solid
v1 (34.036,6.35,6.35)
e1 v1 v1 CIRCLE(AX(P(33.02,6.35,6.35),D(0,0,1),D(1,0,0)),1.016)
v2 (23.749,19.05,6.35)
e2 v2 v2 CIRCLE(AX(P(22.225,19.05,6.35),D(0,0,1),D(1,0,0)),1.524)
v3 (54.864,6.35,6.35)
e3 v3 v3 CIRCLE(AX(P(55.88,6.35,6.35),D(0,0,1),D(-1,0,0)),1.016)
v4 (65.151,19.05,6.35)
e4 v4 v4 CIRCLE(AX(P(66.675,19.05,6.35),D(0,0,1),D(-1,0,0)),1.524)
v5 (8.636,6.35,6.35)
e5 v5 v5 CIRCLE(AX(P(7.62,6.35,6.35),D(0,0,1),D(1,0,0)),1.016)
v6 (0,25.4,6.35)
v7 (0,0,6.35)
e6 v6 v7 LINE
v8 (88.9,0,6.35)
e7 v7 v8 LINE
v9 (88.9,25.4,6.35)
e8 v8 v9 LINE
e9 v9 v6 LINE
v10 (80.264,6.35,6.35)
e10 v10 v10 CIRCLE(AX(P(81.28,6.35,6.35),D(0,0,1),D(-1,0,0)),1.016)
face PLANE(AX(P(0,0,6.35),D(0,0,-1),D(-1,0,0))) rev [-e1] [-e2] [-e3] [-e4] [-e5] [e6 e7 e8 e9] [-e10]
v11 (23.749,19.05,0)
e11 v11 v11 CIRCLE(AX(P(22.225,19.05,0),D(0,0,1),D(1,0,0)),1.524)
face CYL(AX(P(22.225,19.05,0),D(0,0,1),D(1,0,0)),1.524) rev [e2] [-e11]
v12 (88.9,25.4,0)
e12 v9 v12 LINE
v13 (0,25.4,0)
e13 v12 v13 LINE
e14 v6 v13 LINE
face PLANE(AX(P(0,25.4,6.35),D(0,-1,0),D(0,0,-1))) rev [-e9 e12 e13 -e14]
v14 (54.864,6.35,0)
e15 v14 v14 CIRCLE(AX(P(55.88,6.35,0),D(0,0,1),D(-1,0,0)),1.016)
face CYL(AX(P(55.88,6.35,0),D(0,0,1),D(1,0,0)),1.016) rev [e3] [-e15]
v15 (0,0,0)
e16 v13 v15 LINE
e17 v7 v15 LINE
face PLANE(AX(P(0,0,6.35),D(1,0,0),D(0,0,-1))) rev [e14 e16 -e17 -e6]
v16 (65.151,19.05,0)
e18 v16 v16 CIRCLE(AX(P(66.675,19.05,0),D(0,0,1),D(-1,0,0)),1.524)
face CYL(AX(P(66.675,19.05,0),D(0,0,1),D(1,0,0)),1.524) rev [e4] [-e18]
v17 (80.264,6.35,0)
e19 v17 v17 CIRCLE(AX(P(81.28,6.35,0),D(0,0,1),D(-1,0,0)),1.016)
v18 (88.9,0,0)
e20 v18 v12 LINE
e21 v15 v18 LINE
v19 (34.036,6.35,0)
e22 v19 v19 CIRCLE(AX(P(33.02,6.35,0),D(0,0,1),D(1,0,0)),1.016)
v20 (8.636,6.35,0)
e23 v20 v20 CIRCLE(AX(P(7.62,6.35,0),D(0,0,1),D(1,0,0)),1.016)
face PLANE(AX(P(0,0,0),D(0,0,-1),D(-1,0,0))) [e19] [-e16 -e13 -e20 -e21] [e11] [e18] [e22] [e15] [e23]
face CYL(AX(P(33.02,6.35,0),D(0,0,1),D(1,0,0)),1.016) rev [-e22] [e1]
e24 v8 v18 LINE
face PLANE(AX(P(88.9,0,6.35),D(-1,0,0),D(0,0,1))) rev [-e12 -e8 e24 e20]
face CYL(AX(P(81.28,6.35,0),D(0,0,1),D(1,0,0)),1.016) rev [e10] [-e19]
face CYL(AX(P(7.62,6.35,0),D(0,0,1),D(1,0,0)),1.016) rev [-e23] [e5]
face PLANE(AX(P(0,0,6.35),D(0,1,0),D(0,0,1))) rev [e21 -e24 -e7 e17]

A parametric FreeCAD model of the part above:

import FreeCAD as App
import Part
import Sketcher
from FreeCAD import Vector
Q = App.Units.Quantity


def add_polygon(sketch, points):
    """Adds a closed chain of lines whose ends are joined by coincident constraints."""
    first, n = sketch.GeometryCount, len(points)
    for a, b in zip(points, points[1:] + points[:1]):
        sketch.addGeometry(Part.LineSegment(App.Vector(*a, 0), App.Vector(*b, 0)), False)
    for i in range(n):
        sketch.addConstraint(Sketcher.Constraint("Coincident", first + i, 2, first + (i + 1) % n, 1))

doc = App.newDocument("Part")
body = doc.addObject("PartDesign::Body", "Body")

sketch1 = doc.addObject("Sketcher::SketchObject", "Sketch")
body.addObject(sketch1)
sketch1.AttachmentSupport = (doc.XY_Plane, [""])
sketch1.MapMode = "FlatFace"
add_polygon(sketch1, [(0, 25.4), (0, 0), (88.9, 0), (88.9, 25.4)])
sketch1.addConstraint([
    Sketcher.Constraint("Vertical", 0),
    Sketcher.Constraint("Horizontal", 1),
    Sketcher.Constraint("Vertical", 2),
    Sketcher.Constraint("Horizontal", 3),
    Sketcher.Constraint("Coincident", 0, 2, -1, 1),
    Sketcher.Constraint("DistanceY", 0, 2, 0, 1, Q("1 in")),
    Sketcher.Constraint("DistanceX", 1, 1, 1, 2, Q("3.5 in")),
])
pad1 = doc.addObject("PartDesign::Pad", "Pad")
body.addObject(pad1)
pad1.Profile = sketch1
pad1.Length = Q("0.25 in")

sketch2 = doc.addObject("Sketcher::SketchObject", "Sketch001")
body.addObject(sketch2)
sketch2.AttachmentSupport = (doc.XY_Plane, [""])
sketch2.MapMode = "FlatFace"
sketch2.AttachmentOffset = App.Placement(Vector(0, 0, 0.25 * 25.4), App.Rotation())
sketch2.addGeometry([
    Part.Circle(Vector(7.62, 6.35, 0), Vector(0, 0, 1), 1.016),
    Part.Circle(Vector(33.02, 6.35, 0), Vector(0, 0, 1), 1.016),
    Part.Circle(Vector(55.88, 6.35, 0), Vector(0, 0, 1), 1.016),
    Part.Circle(Vector(81.28, 6.35, 0), Vector(0, 0, 1), 1.016),
], False)
sketch2.addConstraint([
    Sketcher.Constraint("Equal", 0, 1),
    Sketcher.Constraint("Equal", 1, 2),
    Sketcher.Constraint("Equal", 2, 3),
    Sketcher.Constraint("Horizontal", 0, 3, 1, 3),
    Sketcher.Constraint("Horizontal", 1, 3, 2, 3),
    Sketcher.Constraint("Horizontal", 2, 3, 3, 3),
    Sketcher.Constraint("Diameter", 0, Q("0.08 in")),
    Sketcher.Constraint("DistanceX", 0, 3, 1, 3, Q("1 in")),
    Sketcher.Constraint("DistanceX", 2, 3, 3, 3, Q("1 in")),
    Sketcher.Constraint("DistanceX", -1, 1, 0, 3, Q("0.3 in")),
    Sketcher.Constraint("DistanceX", -1, 1, 2, 3, Q("2.2 in")),
    Sketcher.Constraint("DistanceY", -1, 1, 0, 3, Q("0.25 in")),
])
pocket1 = doc.addObject("PartDesign::Pocket", "Pocket")
body.addObject(pocket1)
pocket1.Profile = sketch2
pocket1.Type = "ThroughAll"

sketch3 = doc.addObject("Sketcher::SketchObject", "Sketch002")
body.addObject(sketch3)
sketch3.AttachmentSupport = (doc.XY_Plane, [""])
sketch3.MapMode = "FlatFace"
sketch3.AttachmentOffset = App.Placement(Vector(0, 0, 0.25 * 25.4), App.Rotation())
sketch3.addGeometry([
    Part.Circle(Vector(22.225, 19.05, 0), Vector(0, 0, 1), 1.524),
    Part.Circle(Vector(66.675, 19.05, 0), Vector(0, 0, 1), 1.524),
], False)
sketch3.addConstraint([
    Sketcher.Constraint("Equal", 0, 1),
    Sketcher.Constraint("Horizontal", 0, 3, 1, 3),
    Sketcher.Constraint("Diameter", 0, Q("0.12 in")),
    Sketcher.Constraint("DistanceY", -1, 1, 0, 3, Q("0.75 in")),
    Sketcher.Constraint("DistanceX", 0, 3, 1, 3, Q("1.75 in")),
    Sketcher.Constraint("DistanceX", -1, 1, 0, 3, Q("0.875 in")),
])
pocket2 = doc.addObject("PartDesign::Pocket", "Pocket001")
body.addObject(pocket2)
pocket2.Profile = sketch3
pocket2.Type = "ThroughAll"

doc.recompute()
